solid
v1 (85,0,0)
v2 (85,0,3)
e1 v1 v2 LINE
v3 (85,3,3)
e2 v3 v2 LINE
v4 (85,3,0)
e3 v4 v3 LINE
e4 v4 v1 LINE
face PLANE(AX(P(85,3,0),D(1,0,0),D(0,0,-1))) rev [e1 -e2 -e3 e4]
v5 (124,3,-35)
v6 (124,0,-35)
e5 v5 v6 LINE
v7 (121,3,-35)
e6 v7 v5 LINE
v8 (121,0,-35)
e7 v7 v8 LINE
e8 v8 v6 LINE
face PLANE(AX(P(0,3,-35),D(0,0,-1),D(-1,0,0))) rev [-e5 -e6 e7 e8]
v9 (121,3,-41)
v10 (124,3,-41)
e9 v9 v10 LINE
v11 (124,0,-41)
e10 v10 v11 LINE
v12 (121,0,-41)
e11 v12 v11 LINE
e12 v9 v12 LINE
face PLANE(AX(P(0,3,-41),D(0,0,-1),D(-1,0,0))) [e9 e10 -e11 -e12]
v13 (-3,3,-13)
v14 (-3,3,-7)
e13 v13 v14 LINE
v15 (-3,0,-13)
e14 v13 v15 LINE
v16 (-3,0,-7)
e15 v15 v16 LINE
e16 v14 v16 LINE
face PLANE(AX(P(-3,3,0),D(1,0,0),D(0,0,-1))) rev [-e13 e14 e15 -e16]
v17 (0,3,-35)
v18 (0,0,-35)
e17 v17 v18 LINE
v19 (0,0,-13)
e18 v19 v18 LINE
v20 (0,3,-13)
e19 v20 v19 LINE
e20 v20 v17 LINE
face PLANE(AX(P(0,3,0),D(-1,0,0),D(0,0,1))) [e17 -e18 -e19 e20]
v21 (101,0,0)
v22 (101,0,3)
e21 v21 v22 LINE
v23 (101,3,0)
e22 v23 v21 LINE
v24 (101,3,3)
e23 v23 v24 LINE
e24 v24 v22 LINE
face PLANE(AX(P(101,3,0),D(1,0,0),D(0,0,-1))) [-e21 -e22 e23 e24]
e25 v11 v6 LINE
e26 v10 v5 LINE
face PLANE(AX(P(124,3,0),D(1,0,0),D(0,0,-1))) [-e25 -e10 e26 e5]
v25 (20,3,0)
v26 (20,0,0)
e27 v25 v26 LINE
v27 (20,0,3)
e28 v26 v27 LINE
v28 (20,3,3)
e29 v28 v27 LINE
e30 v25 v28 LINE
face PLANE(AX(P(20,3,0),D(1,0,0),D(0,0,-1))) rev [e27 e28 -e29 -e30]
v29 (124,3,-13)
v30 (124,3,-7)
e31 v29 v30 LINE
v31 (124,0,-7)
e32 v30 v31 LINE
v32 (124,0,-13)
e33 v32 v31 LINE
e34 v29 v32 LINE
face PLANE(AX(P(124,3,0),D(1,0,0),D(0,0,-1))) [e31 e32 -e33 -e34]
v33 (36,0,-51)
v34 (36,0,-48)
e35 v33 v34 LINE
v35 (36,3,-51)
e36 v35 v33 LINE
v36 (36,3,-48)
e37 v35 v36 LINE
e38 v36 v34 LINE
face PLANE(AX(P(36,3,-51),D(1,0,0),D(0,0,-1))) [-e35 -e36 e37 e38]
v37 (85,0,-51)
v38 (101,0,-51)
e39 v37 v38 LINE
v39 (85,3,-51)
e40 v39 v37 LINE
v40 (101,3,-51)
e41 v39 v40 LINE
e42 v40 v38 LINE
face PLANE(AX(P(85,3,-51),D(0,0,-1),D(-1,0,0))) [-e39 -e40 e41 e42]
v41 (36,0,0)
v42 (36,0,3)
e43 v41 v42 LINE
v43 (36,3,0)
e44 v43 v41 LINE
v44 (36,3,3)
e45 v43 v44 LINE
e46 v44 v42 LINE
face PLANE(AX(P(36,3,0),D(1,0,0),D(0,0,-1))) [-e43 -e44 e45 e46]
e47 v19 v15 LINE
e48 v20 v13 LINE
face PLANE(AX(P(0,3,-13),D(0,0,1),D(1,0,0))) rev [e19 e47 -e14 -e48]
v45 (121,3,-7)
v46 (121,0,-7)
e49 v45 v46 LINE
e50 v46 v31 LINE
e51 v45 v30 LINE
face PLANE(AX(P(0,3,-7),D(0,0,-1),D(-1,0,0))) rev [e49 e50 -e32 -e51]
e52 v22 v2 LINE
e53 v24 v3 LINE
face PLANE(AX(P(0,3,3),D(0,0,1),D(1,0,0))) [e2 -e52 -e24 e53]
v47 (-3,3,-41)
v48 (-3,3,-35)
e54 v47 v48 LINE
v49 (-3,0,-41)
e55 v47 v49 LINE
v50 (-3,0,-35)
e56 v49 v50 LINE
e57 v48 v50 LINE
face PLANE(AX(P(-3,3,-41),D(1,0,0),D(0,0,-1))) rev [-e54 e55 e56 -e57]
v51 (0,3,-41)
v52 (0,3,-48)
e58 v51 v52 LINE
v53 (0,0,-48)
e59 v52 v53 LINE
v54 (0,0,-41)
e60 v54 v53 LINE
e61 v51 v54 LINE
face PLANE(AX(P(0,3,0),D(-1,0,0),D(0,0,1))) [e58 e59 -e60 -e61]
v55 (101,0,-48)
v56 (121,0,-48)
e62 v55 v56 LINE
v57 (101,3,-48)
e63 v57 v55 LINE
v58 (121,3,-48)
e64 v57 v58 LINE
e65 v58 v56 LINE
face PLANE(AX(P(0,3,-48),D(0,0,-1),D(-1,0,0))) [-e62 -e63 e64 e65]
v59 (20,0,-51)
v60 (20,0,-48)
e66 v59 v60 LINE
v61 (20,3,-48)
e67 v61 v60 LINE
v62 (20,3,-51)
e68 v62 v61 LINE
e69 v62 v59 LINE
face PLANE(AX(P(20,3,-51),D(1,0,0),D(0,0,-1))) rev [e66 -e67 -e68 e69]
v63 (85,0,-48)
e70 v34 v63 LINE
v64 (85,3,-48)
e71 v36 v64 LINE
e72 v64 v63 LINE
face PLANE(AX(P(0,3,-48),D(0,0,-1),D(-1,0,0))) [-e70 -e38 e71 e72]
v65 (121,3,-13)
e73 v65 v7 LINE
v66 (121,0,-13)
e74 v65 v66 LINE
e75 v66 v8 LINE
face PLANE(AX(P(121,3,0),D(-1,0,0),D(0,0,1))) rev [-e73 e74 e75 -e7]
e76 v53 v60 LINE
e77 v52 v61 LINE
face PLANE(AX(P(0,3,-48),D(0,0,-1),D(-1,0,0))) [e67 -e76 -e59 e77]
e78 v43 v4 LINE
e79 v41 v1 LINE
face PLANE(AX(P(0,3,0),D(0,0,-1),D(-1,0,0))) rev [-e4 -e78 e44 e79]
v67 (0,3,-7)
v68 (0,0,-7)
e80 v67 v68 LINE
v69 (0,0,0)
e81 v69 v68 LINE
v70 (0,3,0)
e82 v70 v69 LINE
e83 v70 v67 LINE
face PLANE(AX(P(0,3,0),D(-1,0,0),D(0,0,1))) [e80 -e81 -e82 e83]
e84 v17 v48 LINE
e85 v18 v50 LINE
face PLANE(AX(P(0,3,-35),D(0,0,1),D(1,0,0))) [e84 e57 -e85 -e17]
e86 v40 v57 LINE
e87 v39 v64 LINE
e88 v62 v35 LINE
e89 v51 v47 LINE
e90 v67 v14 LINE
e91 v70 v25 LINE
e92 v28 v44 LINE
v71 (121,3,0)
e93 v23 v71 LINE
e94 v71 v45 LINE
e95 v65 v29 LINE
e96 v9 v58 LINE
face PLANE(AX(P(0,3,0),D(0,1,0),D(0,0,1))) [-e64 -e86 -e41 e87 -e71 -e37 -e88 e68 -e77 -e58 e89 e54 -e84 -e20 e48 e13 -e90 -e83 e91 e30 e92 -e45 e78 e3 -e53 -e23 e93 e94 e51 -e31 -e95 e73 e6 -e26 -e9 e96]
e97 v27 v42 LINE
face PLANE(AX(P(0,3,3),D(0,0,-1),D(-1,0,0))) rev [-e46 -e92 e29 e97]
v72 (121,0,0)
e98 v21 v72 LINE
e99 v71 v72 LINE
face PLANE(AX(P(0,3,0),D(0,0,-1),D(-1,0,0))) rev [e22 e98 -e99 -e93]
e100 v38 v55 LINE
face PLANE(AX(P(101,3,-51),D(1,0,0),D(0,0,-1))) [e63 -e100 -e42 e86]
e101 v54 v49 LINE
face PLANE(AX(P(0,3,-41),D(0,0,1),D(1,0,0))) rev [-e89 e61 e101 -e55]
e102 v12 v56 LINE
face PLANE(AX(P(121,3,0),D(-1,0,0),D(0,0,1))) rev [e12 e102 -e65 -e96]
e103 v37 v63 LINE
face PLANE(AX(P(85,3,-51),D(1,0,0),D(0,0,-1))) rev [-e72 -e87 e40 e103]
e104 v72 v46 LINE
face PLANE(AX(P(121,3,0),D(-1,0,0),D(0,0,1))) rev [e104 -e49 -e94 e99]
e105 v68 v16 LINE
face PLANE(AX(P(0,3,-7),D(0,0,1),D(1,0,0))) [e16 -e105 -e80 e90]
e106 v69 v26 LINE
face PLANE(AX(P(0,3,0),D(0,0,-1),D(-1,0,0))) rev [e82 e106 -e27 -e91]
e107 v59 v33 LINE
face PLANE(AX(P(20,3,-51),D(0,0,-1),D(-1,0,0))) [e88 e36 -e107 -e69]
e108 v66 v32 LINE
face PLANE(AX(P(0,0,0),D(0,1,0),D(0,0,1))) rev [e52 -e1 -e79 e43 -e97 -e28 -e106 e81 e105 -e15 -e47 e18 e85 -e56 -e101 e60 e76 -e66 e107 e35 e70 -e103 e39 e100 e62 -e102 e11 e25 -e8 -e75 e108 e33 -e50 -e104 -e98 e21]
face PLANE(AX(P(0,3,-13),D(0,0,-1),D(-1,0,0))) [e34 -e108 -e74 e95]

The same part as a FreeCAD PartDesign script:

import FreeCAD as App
import Part
import Sketcher

V = App.Vector

doc = App.newDocument("Part")
params = doc.addObject("Spreadsheet::Sheet", "Params")
for row, (alias, value) in enumerate([
    ("sketch1_width", "3 mm"),
    ("sketch1_width2", "20 mm"),
    ("sketch1_width3", "16 mm"),
    ("sketch1_width4", "49 mm"),
    ("sketch1_height", "7 mm"),
    ("pad1_length", "3 mm"),
], start=1):
    params.set(f"A{row}", alias)
    params.set(f"B{row}", "=" + value)
    params.setAlias(f"B{row}", alias)

body = doc.addObject("PartDesign::Body", "Body")

# Sketch on XZ plane
sketch1 = body.newObject("Sketcher::SketchObject", "Sketch")
sketch1.AttachmentSupport = (doc.getObject("XZ_Plane"), [""])
sketch1.MapMode = "FlatFace"
sketch1.addGeometry(Part.LineSegment(V(0, -48, 0), V(0, -41, 0)), False)
sketch1.addGeometry(Part.LineSegment(V(0, -41, 0), V(-3, -41, 0)), False)
sketch1.addGeometry(Part.LineSegment(V(-3, -41, 0), V(-3, -35, 0)), False)
sketch1.addGeometry(Part.LineSegment(V(-3, -35, 0), V(0, -35, 0)), False)
sketch1.addGeometry(Part.LineSegment(V(0, -35, 0), V(0, -13, 0)), False)
sketch1.addGeometry(Part.LineSegment(V(0, -13, 0), V(-3, -13, 0)), False)
sketch1.addGeometry(Part.LineSegment(V(-3, -13, 0), V(-3, -7, 0)), False)
sketch1.addGeometry(Part.LineSegment(V(-3, -7, 0), V(0, -7, 0)), False)
sketch1.addGeometry(Part.LineSegment(V(0, -7, 0), V(0, 0, 0)), False)
sketch1.addGeometry(Part.LineSegment(V(0, 0, 0), V(20, 0, 0)), False)
sketch1.addGeometry(Part.LineSegment(V(20, 0, 0), V(20, 3, 0)), False)
sketch1.addGeometry(Part.LineSegment(V(20, 3, 0), V(36, 3, 0)), False)
sketch1.addGeometry(Part.LineSegment(V(36, 3, 0), V(36, 0, 0)), False)
sketch1.addGeometry(Part.LineSegment(V(36, 0, 0), V(85, 0, 0)), False)
sketch1.addGeometry(Part.LineSegment(V(85, 0, 0), V(85, 3, 0)), False)
sketch1.addGeometry(Part.LineSegment(V(85, 3, 0), V(101, 3, 0)), False)
sketch1.addGeometry(Part.LineSegment(V(101, 3, 0), V(101, 0, 0)), False)
sketch1.addGeometry(Part.LineSegment(V(101, 0, 0), V(121, 0, 0)), False)
sketch1.addGeometry(Part.LineSegment(V(121, 0, 0), V(121, -7, 0)), False)
sketch1.addGeometry(Part.LineSegment(V(121, -7, 0), V(124, -7, 0)), False)
sketch1.addGeometry(Part.LineSegment(V(124, -7, 0), V(124, -13, 0)), False)
sketch1.addGeometry(Part.LineSegment(V(124, -13, 0), V(121, -13, 0)), False)
sketch1.addGeometry(Part.LineSegment(V(121, -13, 0), V(121, -35, 0)), False)
sketch1.addGeometry(Part.LineSegment(V(121, -35, 0), V(124, -35, 0)), False)
sketch1.addGeometry(Part.LineSegment(V(124, -35, 0), V(124, -41, 0)), False)
sketch1.addGeometry(Part.LineSegment(V(124, -41, 0), V(121, -41, 0)), False)
sketch1.addGeometry(Part.LineSegment(V(121, -41, 0), V(121, -48, 0)), False)
sketch1.addGeometry(Part.LineSegment(V(121, -48, 0), V(101, -48, 0)), False)
sketch1.addGeometry(Part.LineSegment(V(101, -48, 0), V(101, -51, 0)), False)
sketch1.addGeometry(Part.LineSegment(V(101, -51, 0), V(85, -51, 0)), False)
sketch1.addGeometry(Part.LineSegment(V(85, -51, 0), V(85, -48, 0)), False)
sketch1.addGeometry(Part.LineSegment(V(85, -48, 0), V(36, -48, 0)), False)
sketch1.addGeometry(Part.LineSegment(V(36, -48, 0), V(36, -51, 0)), False)
sketch1.addGeometry(Part.LineSegment(V(36, -51, 0), V(20, -51, 0)), False)
sketch1.addGeometry(Part.LineSegment(V(20, -51, 0), V(20, -48, 0)), False)
sketch1.addGeometry(Part.LineSegment(V(20, -48, 0), V(0, -48, 0)), False)
sketch1.addConstraint(Sketcher.Constraint("Coincident", 0, 2, 1, 1))
sketch1.addConstraint(Sketcher.Constraint("Coincident", 1, 2, 2, 1))
sketch1.addConstraint(Sketcher.Constraint("Coincident", 2, 2, 3, 1))
sketch1.addConstraint(Sketcher.Constraint("Coincident", 3, 2, 4, 1))
sketch1.addConstraint(Sketcher.Constraint("Coincident", 4, 2, 5, 1))
sketch1.addConstraint(Sketcher.Constraint("Coincident", 5, 2, 6, 1))
sketch1.addConstraint(Sketcher.Constraint("Coincident", 6, 2, 7, 1))
sketch1.addConstraint(Sketcher.Constraint("Coincident", 7, 2, 8, 1))
sketch1.addConstraint(Sketcher.Constraint("Coincident", 8, 2, 9, 1))
sketch1.addConstraint(Sketcher.Constraint("Coincident", 9, 2, 10, 1))
sketch1.addConstraint(Sketcher.Constraint("Coincident", 10, 2, 11, 1))
sketch1.addConstraint(Sketcher.Constraint("Coincident", 11, 2, 12, 1))
sketch1.addConstraint(Sketcher.Constraint("Coincident", 12, 2, 13, 1))
sketch1.addConstraint(Sketcher.Constraint("Coincident", 13, 2, 14, 1))
sketch1.addConstraint(Sketcher.Constraint("Coincident", 14, 2, 15, 1))
sketch1.addConstraint(Sketcher.Constraint("Coincident", 15, 2, 16, 1))
sketch1.addConstraint(Sketcher.Constraint("Coincident", 16, 2, 17, 1))
sketch1.addConstraint(Sketcher.Constraint("Coincident", 17, 2, 18, 1))
sketch1.addConstraint(Sketcher.Constraint("Coincident", 18, 2, 19, 1))
sketch1.addConstraint(Sketcher.Constraint("Coincident", 19, 2, 20, 1))
sketch1.addConstraint(Sketcher.Constraint("Coincident", 20, 2, 21, 1))
sketch1.addConstraint(Sketcher.Constraint("Coincident", 21, 2, 22, 1))
sketch1.addConstraint(Sketcher.Constraint("Coincident", 22, 2, 23, 1))
sketch1.addConstraint(Sketcher.Constraint("Coincident", 23, 2, 24, 1))
sketch1.addConstraint(Sketcher.Constraint("Coincident", 24, 2, 25, 1))
sketch1.addConstraint(Sketcher.Constraint("Coincident", 25, 2, 26, 1))
sketch1.addConstraint(Sketcher.Constraint("Coincident", 26, 2, 27, 1))
sketch1.addConstraint(Sketcher.Constraint("Coincident", 27, 2, 28, 1))
sketch1.addConstraint(Sketcher.Constraint("Coincident", 28, 2, 29, 1))
sketch1.addConstraint(Sketcher.Constraint("Coincident", 29, 2, 30, 1))
sketch1.addConstraint(Sketcher.Constraint("Coincident", 30, 2, 31, 1))
sketch1.addConstraint(Sketcher.Constraint("Coincident", 31, 2, 32, 1))
sketch1.addConstraint(Sketcher.Constraint("Coincident", 32, 2, 33, 1))
sketch1.addConstraint(Sketcher.Constraint("Coincident", 33, 2, 34, 1))
sketch1.addConstraint(Sketcher.Constraint("Coincident", 34, 2, 35, 1))
sketch1.addConstraint(Sketcher.Constraint("Coincident", 35, 2, 0, 1))
sketch1.addConstraint(Sketcher.Constraint("Vertical", 0))
sketch1.addConstraint(Sketcher.Constraint("Horizontal", 1))
sketch1.addConstraint(Sketcher.Constraint("Vertical", 2))
sketch1.addConstraint(Sketcher.Constraint("Horizontal", 3))
sketch1.addConstraint(Sketcher.Constraint("Vertical", 4))
sketch1.addConstraint(Sketcher.Constraint("Horizontal", 5))
sketch1.addConstraint(Sketcher.Constraint("Vertical", 6))
sketch1.addConstraint(Sketcher.Constraint("Horizontal", 7))
sketch1.addConstraint(Sketcher.Constraint("Vertical", 8))
sketch1.addConstraint(Sketcher.Constraint("Horizontal", 9))
sketch1.addConstraint(Sketcher.Constraint("Vertical", 10))
sketch1.addConstraint(Sketcher.Constraint("Horizontal", 11))
sketch1.addConstraint(Sketcher.Constraint("Vertical", 12))
sketch1.addConstraint(Sketcher.Constraint("Horizontal", 13))
sketch1.addConstraint(Sketcher.Constraint("Vertical", 14))
sketch1.addConstraint(Sketcher.Constraint("Horizontal", 15))
sketch1.addConstraint(Sketcher.Constraint("Vertical", 16))
sketch1.addConstraint(Sketcher.Constraint("Horizontal", 17))
sketch1.addConstraint(Sketcher.Constraint("Vertical", 18))
sketch1.addConstraint(Sketcher.Constraint("Horizontal", 19))
sketch1.addConstraint(Sketcher.Constraint("Vertical", 20))
sketch1.addConstraint(Sketcher.Constraint("Horizontal", 21))
sketch1.addConstraint(Sketcher.Constraint("Vertical", 22))
sketch1.addConstraint(Sketcher.Constraint("Horizontal", 23))
sketch1.addConstraint(Sketcher.Constraint("Vertical", 24))
sketch1.addConstraint(Sketcher.Constraint("Horizontal", 25))
sketch1.addConstraint(Sketcher.Constraint("Vertical", 26))
sketch1.addConstraint(Sketcher.Constraint("Horizontal", 27))
sketch1.addConstraint(Sketcher.Constraint("Vertical", 28))
sketch1.addConstraint(Sketcher.Constraint("Horizontal", 29))
sketch1.addConstraint(Sketcher.Constraint("Vertical", 30))
sketch1.addConstraint(Sketcher.Constraint("Horizontal", 31))
sketch1.addConstraint(Sketcher.Constraint("Vertical", 32))
sketch1.addConstraint(Sketcher.Constraint("Horizontal", 33))
sketch1.addConstraint(Sketcher.Constraint("Vertical", 34))
sketch1.addConstraint(Sketcher.Constraint("Horizontal", 35))
sketch1.addConstraint(Sketcher.Constraint("Coincident", 8, 2, -1, 1))
sketch1.addConstraint(Sketcher.Constraint("PointOnObject", 0, 2, -2))
sketch1.addConstraint(Sketcher.Constraint("PointOnObject", 3, 2, -2))
sketch1.addConstraint(Sketcher.Constraint("PointOnObject", 12, 2, -1))
sketch1.addConstraint(Sketcher.Constraint("PointOnObject", 16, 2, -1))
sketch1.addConstraint(Sketcher.Constraint("Horizontal", 11, 2, 14, 2))
sketch1.addConstraint(Sketcher.Constraint("Horizontal", 7, 2, 18, 2))
sketch1.addConstraint(Sketcher.Constraint("Horizontal", 5, 2, 20, 2))
sketch1.addConstraint(Sketcher.Constraint("Horizontal", 3, 2, 22, 2))
sketch1.addConstraint(Sketcher.Constraint("Horizontal", 1, 2, 24, 2))
sketch1.addConstraint(Sketcher.Constraint("Horizontal", 27, 2, 30, 2))
sketch1.addConstraint(Sketcher.Constraint("Horizontal", 29, 2, 32, 2))
sketch1.addConstraint(Sketcher.Constraint("Horizontal", 31, 2, 34, 2))
sketch1.addConstraint(Sketcher.Constraint("Vertical", 2, 2, 5, 2))
sketch1.addConstraint(Sketcher.Constraint("Vertical", 18, 2, 21, 2))
sketch1.addConstraint(Sketcher.Constraint("Vertical", 20, 2, 23, 2))
sketch1.addConstraint(Sketcher.Constraint("Vertical", 22, 2, 25, 2))
sketch1.addConstraint(Sketcher.Constraint("Vertical", 16, 2, 27, 2))
sketch1.addConstraint(Sketcher.Constraint("Vertical", 14, 2, 29, 2))
sketch1.addConstraint(Sketcher.Constraint("Vertical", 12, 2, 31, 2))
sketch1.addConstraint(Sketcher.Constraint("Vertical", 10, 2, 33, 2))
sketch1.addConstraint(Sketcher.Constraint("Equal", 11, 15))
sketch1.addConstraint(Sketcher.Constraint("Equal", 9, 17))
sketch1.addConstraint(Sketcher.Constraint("Equal", 7, 19))
sketch1.addConstraint(Sketcher.Constraint("Equal", 2, 6))
sketch1.addConstraint(Sketcher.Constraint("Equal", 0, 8))
sketch1.addConstraint(Sketcher.Constraint("Equal", 25, 10))
sketch1.addConstraint(Sketcher.Constraint("Equal", 16, 28))
sketch1.addConstraint(Sketcher.Constraint("DistanceX", 1, 2, 1, 1, 3.0))
sketch1.addConstraint(Sketcher.Constraint("DistanceX", 9, 1, 9, 2, 20.0))
sketch1.addConstraint(Sketcher.Constraint("DistanceX", 11, 1, 11, 2, 16.0))
sketch1.addConstraint(Sketcher.Constraint("DistanceX", 13, 1, 13, 2, 49.0))
sketch1.addConstraint(Sketcher.Constraint("DistanceY", 0, 1, 0, 2, 7.0))
sketch1.addConstraint(Sketcher.Constraint("DistanceY", 2, 1, 2, 2, 6.0))
sketch1.addConstraint(Sketcher.Constraint("DistanceY", 4, 1, 4, 2, 22.0))
sketch1.setExpression("Constraints[100]", "Params.sketch1_width")
sketch1.setExpression("Constraints[101]", "Params.sketch1_width2")
sketch1.setExpression("Constraints[102]", "Params.sketch1_width3")
sketch1.setExpression("Constraints[103]", "Params.sketch1_width4")
sketch1.setExpression("Constraints[104]", "Params.sketch1_height")
pad1 = body.newObject("PartDesign::Pad", "Pad")
pad1.Profile = sketch1
pad1.setExpression("Length", "Params.pad1_length")
pad1.Reversed = True

doc.recompute()
